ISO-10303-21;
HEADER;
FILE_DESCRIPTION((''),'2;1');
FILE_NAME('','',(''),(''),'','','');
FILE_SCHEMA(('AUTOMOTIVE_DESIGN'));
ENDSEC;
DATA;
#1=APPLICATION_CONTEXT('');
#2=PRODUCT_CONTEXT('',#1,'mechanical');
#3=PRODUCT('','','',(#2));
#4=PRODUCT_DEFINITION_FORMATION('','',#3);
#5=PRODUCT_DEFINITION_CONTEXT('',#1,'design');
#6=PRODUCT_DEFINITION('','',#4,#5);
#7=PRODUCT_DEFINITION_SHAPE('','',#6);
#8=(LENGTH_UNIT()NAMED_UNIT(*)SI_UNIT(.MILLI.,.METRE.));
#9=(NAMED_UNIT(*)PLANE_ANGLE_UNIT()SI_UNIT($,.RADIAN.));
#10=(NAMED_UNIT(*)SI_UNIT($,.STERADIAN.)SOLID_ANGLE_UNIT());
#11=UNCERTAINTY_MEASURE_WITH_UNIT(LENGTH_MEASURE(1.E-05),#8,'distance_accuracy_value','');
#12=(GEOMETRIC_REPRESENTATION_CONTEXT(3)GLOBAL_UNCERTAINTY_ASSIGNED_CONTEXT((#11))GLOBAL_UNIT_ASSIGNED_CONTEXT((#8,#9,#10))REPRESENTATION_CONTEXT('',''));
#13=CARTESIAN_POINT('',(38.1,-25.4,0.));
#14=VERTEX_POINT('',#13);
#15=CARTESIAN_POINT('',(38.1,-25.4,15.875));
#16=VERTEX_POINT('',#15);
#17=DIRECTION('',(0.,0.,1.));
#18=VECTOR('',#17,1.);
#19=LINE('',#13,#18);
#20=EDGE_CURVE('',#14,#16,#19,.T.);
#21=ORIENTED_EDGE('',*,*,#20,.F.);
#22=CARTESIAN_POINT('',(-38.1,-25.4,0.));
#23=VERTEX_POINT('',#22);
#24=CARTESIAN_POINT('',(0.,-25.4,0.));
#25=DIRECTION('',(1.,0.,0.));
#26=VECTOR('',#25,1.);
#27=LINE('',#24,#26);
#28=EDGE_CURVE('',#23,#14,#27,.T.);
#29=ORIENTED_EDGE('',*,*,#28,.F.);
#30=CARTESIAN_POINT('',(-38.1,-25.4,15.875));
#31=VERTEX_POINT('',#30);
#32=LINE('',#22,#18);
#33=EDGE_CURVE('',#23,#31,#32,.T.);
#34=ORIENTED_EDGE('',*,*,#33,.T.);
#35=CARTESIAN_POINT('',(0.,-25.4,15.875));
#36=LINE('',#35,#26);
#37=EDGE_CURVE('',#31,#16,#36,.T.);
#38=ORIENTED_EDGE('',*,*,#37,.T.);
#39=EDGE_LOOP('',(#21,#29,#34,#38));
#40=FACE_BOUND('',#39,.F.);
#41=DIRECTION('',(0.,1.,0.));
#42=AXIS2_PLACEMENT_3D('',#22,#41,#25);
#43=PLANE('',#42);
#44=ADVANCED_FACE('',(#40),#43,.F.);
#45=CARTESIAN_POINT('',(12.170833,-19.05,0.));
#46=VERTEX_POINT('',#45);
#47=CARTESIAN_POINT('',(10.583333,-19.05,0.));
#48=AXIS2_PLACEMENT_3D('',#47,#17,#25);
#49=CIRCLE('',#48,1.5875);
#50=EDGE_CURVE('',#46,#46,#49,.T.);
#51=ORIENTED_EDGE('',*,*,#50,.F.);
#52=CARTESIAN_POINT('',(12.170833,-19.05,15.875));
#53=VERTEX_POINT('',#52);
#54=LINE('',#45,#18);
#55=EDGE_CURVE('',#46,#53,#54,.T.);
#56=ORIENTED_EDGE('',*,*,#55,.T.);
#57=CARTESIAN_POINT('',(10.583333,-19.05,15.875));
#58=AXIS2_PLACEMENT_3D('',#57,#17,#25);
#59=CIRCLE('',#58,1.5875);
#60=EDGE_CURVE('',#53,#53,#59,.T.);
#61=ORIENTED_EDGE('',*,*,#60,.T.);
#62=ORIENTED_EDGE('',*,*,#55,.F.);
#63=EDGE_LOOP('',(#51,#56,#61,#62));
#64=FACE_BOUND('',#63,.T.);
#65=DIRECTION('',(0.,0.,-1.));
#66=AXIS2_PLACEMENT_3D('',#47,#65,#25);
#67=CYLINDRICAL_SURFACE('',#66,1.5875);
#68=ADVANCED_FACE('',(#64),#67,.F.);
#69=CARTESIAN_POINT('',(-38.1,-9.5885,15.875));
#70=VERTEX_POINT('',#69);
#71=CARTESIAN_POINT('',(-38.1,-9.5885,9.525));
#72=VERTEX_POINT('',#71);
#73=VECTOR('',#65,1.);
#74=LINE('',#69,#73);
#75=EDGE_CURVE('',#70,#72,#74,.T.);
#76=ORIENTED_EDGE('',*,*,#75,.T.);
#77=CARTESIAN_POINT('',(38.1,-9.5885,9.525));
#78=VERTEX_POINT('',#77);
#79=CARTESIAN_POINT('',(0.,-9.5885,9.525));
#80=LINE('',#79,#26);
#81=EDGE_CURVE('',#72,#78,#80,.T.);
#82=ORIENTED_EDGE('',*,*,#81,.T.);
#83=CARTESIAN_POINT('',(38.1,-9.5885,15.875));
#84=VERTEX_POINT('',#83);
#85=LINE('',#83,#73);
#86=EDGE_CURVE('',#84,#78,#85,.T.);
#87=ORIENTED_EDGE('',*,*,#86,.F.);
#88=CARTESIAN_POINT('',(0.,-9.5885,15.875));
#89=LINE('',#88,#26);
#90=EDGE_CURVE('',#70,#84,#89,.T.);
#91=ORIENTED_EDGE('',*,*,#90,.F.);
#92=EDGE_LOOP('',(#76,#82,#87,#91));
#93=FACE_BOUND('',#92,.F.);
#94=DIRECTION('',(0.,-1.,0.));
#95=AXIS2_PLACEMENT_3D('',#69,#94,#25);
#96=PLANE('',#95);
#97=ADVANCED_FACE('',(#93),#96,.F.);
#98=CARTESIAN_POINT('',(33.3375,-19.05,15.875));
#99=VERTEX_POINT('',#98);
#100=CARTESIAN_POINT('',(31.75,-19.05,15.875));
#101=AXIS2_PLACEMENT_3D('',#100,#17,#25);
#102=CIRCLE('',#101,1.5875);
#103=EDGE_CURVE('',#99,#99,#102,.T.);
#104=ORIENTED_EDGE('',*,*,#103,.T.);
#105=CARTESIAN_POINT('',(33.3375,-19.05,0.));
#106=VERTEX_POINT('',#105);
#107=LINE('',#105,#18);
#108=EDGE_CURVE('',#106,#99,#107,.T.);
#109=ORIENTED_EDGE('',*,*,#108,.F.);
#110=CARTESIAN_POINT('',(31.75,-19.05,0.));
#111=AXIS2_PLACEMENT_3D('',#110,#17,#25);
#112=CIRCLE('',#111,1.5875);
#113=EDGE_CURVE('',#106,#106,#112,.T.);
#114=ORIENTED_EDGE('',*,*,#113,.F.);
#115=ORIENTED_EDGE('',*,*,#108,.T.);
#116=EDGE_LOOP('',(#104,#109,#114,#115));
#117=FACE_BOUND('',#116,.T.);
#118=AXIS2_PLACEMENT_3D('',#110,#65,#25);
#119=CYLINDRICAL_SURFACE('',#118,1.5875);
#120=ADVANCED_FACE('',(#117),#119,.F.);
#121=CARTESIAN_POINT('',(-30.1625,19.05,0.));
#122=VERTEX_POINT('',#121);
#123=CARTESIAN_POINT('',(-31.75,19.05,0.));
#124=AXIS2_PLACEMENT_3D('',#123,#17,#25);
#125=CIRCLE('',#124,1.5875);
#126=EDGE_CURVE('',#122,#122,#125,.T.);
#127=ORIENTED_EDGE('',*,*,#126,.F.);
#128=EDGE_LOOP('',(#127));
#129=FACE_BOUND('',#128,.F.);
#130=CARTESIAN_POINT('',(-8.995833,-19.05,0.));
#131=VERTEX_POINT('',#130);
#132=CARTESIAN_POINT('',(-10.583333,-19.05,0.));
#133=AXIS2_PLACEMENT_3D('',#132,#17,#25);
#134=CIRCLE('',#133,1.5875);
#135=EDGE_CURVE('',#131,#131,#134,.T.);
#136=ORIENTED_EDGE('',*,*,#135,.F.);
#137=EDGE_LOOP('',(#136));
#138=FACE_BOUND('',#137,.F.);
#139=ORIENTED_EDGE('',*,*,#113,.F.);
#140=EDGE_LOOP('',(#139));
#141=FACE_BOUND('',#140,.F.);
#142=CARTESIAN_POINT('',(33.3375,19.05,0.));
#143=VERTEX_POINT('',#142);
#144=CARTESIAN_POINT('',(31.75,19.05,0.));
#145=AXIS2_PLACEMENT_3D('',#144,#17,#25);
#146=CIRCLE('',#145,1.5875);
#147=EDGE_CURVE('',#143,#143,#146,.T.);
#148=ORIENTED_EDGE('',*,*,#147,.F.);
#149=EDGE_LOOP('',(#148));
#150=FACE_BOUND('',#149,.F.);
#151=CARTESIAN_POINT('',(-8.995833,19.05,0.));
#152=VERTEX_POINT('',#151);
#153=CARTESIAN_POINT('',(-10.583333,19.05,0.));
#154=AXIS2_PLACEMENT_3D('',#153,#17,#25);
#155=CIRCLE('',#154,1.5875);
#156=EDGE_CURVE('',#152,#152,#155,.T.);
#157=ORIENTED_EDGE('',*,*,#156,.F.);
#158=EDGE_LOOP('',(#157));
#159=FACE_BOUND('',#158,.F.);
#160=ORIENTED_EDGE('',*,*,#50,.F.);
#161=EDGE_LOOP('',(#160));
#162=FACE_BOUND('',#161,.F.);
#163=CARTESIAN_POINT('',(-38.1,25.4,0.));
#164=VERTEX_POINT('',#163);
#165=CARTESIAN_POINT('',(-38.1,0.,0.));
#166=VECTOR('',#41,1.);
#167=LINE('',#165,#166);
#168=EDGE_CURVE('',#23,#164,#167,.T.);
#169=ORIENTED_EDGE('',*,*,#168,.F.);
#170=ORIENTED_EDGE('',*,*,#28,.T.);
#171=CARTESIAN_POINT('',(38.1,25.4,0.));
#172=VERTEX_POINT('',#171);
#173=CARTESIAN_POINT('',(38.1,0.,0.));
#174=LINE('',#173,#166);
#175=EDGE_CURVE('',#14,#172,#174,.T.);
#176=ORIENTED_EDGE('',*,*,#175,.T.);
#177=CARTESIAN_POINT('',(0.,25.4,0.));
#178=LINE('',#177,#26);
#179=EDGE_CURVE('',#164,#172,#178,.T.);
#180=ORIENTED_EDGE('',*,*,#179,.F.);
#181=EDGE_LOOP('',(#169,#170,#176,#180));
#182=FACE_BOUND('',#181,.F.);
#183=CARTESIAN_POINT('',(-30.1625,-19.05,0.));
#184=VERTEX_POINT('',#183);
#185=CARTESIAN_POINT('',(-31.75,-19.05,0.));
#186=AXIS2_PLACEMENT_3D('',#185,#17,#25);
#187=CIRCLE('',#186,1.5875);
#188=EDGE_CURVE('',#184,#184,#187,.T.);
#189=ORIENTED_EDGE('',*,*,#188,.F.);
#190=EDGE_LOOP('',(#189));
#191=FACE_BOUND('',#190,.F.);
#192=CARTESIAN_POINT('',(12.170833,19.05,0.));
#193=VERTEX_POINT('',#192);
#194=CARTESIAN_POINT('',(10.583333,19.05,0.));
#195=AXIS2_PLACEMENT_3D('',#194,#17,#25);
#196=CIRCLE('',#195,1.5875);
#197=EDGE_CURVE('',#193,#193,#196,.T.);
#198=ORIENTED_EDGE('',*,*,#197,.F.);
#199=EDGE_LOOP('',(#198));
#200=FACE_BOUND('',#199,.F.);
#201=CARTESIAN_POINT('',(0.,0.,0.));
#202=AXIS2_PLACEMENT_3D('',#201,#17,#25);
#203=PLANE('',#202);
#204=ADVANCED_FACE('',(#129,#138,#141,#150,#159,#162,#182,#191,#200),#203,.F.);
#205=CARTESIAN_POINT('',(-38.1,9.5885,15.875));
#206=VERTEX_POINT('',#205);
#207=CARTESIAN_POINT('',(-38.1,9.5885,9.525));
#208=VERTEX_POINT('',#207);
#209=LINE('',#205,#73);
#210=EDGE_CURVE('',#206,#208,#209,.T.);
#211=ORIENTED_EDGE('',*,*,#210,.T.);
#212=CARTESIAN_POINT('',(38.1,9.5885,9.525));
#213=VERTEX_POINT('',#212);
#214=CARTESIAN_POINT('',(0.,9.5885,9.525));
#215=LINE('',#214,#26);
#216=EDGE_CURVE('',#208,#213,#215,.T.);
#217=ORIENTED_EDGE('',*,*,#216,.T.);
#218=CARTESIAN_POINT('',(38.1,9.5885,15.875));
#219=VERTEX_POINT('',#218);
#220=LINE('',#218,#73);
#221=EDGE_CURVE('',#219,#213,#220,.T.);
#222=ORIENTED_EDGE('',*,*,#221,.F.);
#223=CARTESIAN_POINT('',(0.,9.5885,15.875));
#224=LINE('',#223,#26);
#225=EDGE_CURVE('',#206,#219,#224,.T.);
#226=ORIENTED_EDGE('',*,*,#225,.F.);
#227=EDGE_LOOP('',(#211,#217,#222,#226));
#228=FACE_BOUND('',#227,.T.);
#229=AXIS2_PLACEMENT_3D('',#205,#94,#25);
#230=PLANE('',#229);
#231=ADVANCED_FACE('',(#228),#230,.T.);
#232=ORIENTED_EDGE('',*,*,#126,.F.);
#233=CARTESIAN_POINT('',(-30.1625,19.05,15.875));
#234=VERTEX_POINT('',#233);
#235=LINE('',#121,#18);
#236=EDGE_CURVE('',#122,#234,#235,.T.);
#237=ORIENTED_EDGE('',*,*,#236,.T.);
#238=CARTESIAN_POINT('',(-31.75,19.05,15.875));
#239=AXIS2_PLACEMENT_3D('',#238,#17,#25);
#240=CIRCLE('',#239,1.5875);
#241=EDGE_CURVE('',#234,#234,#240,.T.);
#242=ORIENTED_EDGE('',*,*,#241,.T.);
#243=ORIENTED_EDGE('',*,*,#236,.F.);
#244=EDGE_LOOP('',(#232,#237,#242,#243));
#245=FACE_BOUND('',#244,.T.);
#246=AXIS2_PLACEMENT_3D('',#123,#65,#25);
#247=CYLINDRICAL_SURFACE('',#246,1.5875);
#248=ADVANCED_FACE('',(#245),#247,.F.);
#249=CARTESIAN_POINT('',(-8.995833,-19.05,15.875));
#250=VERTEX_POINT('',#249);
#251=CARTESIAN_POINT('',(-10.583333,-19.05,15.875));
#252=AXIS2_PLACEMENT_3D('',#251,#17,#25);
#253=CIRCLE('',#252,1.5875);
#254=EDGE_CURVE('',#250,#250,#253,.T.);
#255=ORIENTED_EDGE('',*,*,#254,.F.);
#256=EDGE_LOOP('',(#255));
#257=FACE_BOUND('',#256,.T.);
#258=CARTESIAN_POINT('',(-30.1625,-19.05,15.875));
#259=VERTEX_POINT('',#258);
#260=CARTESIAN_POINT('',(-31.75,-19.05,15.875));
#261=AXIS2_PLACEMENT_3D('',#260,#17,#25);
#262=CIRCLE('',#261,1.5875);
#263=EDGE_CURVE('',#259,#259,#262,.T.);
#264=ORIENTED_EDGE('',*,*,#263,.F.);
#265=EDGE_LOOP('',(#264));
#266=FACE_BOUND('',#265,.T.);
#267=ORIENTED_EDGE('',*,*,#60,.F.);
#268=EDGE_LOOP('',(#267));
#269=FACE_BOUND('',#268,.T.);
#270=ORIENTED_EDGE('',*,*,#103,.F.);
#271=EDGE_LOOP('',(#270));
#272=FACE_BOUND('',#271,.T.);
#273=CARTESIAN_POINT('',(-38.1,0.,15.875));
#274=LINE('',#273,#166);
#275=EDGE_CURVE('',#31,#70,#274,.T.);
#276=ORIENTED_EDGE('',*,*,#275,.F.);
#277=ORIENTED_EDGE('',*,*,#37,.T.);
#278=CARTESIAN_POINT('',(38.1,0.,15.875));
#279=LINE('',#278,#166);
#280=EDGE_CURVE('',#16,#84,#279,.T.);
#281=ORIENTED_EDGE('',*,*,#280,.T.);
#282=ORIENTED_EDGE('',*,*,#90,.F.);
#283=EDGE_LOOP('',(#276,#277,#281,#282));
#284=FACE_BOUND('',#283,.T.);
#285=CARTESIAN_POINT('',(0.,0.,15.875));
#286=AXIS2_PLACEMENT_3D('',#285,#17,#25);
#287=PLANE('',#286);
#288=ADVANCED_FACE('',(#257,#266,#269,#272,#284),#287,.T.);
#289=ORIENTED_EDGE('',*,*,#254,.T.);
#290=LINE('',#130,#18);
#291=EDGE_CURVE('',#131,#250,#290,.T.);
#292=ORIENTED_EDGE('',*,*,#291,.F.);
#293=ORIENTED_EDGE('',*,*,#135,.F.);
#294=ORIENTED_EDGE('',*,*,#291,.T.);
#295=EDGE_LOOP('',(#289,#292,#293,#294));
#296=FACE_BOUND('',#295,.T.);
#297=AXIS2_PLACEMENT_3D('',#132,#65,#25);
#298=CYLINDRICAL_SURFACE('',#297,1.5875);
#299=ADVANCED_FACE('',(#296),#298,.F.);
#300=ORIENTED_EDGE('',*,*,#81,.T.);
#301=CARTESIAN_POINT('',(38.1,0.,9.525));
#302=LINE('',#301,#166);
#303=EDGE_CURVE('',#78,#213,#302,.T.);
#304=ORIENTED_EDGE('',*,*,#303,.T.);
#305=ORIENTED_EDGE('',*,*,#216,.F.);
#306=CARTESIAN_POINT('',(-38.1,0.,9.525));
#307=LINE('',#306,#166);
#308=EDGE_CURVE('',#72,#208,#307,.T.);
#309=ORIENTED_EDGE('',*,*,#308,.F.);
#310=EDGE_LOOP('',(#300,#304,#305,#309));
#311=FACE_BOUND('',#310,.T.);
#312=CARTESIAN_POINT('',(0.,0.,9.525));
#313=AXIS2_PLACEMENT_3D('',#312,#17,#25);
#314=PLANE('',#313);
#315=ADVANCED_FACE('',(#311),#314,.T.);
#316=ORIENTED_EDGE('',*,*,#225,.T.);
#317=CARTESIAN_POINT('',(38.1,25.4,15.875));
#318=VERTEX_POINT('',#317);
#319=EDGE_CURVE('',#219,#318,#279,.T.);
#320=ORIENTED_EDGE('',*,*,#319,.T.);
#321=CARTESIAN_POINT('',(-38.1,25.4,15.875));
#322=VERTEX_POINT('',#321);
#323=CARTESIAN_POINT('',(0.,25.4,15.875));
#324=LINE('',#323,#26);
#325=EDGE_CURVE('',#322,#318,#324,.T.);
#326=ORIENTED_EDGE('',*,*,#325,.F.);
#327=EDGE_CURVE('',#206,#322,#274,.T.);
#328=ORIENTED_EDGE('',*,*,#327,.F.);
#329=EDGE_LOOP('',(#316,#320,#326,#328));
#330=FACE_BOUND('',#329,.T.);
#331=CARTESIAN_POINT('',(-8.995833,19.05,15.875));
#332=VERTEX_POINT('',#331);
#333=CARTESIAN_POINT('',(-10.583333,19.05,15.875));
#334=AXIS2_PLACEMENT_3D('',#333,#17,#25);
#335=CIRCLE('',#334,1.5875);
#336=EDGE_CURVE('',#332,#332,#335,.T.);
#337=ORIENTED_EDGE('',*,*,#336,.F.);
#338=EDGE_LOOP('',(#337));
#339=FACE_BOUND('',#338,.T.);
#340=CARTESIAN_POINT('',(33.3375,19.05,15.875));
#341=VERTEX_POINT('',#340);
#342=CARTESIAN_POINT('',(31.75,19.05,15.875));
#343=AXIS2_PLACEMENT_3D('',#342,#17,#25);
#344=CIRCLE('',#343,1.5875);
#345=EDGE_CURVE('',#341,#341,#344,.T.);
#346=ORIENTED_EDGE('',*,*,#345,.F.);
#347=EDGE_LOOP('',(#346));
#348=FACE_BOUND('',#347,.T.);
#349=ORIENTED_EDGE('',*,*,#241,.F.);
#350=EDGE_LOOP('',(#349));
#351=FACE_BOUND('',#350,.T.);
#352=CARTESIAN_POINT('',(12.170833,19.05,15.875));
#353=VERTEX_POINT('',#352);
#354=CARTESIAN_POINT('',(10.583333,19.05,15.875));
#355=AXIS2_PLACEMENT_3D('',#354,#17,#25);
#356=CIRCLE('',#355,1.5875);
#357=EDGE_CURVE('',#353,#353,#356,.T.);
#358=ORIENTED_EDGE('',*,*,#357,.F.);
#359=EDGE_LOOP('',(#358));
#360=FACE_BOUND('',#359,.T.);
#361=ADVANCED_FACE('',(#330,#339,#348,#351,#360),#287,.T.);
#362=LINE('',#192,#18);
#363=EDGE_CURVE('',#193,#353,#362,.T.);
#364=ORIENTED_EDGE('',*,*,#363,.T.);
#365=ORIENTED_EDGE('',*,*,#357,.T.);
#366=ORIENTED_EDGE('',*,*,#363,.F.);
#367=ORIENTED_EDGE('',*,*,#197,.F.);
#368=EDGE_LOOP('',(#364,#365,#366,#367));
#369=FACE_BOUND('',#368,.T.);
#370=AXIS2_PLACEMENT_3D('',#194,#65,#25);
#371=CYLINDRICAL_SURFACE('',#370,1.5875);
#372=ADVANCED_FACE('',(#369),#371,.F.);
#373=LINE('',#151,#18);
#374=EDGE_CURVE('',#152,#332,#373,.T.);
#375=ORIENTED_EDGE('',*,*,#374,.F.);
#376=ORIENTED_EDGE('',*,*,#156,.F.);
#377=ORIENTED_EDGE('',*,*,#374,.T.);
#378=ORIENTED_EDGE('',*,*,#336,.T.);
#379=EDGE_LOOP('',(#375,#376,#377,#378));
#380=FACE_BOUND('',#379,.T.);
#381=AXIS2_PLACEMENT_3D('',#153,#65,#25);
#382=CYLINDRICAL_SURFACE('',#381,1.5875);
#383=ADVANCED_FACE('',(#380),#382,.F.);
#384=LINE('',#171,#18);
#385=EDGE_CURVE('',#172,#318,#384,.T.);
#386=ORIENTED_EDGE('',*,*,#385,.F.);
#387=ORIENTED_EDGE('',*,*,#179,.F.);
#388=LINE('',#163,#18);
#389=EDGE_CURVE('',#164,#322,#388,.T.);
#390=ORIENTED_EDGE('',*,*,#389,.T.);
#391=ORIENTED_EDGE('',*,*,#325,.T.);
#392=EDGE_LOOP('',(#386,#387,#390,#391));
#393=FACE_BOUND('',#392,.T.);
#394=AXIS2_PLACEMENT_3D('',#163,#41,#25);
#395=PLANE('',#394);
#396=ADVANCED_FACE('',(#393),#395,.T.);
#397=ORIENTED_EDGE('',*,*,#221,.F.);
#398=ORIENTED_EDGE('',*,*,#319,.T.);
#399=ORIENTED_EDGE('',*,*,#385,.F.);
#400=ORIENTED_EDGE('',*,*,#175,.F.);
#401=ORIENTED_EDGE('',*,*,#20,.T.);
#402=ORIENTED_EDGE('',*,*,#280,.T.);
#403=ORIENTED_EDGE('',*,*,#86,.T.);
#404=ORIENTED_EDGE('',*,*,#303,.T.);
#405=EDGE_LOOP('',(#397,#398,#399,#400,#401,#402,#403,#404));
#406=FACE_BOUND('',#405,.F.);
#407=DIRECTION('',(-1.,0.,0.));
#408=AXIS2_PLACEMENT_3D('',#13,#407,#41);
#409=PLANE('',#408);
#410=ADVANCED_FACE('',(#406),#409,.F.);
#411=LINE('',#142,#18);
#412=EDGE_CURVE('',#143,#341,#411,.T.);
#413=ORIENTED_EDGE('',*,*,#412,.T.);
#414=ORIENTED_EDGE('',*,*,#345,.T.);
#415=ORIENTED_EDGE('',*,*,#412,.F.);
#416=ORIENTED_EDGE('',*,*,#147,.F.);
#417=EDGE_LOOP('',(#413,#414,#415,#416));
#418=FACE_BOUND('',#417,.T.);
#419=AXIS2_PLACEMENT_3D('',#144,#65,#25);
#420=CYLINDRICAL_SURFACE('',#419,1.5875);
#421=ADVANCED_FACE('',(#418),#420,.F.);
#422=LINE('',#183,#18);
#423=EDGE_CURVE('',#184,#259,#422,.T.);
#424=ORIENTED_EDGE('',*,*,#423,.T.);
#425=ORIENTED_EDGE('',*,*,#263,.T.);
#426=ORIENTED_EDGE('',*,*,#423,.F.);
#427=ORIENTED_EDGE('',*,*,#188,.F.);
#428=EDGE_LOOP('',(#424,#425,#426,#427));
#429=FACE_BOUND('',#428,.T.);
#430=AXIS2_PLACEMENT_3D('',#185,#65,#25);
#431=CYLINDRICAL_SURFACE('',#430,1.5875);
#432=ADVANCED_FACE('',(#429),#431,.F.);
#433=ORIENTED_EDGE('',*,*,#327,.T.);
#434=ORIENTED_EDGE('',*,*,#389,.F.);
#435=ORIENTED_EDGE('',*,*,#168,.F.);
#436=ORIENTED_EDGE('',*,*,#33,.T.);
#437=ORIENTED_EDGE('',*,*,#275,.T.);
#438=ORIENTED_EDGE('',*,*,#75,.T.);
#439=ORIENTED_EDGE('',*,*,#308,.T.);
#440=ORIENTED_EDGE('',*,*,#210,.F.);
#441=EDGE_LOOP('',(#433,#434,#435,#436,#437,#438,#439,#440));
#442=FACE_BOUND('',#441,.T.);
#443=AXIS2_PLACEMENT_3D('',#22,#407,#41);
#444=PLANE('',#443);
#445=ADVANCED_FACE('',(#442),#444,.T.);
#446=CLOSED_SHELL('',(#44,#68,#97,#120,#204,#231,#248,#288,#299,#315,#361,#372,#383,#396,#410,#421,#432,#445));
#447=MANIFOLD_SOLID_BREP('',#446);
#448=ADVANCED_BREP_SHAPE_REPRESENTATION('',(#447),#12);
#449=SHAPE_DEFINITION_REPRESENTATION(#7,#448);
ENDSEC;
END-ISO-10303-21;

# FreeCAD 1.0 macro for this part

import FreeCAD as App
import Part
import Sketcher
Q = App.Units.Quantity

doc = App.newDocument("Part")
body = doc.addObject("PartDesign::Body", "Body")

# Sketch on XY plane
sketch1 = doc.addObject("Sketcher::SketchObject", "Sketch")
body.addObject(sketch1)
sketch1.AttachmentSupport = (doc.XY_Plane, [""])
sketch1.MapMode = "FlatFace"
sketch1.addGeometry([
    Part.LineSegment(App.Vector(-38.1, 25.4, 0), App.Vector(-38.1, -25.4, 0)),  # 0
    Part.LineSegment(App.Vector(-38.1, -25.4, 0), App.Vector(38.1, -25.4, 0)),  # 1
    Part.LineSegment(App.Vector(38.1, -25.4, 0), App.Vector(38.1, 25.4, 0)),  # 2
    Part.LineSegment(App.Vector(38.1, 25.4, 0), App.Vector(-38.1, 25.4, 0)),  # 3
    Part.Circle(App.Vector(-31.8, -19.1, 0), App.Vector(0, 0, 1), 1.6),  # 4
    Part.Circle(App.Vector(-10.6, -19.1, 0), App.Vector(0, 0, 1), 1.6),  # 5
    Part.Circle(App.Vector(10.6, -19.1, 0), App.Vector(0, 0, 1), 1.6),  # 6
    Part.Circle(App.Vector(31.8, -19.1, 0), App.Vector(0, 0, 1), 1.6),  # 7
    Part.Circle(App.Vector(-31.8, 19.1, 0), App.Vector(0, 0, 1), 1.6),  # 8
    Part.Circle(App.Vector(-10.6, 19.1, 0), App.Vector(0, 0, 1), 1.6),  # 9
    Part.Circle(App.Vector(10.6, 19.1, 0), App.Vector(0, 0, 1), 1.6),  # 10
    Part.Circle(App.Vector(31.8, 19.1, 0), App.Vector(0, 0, 1), 1.6),  # 11
], False)
sketch1.addConstraint([
    Sketcher.Constraint("Coincident", 0, 2, 1, 1),
    Sketcher.Constraint("Coincident", 1, 2, 2, 1),
    Sketcher.Constraint("Coincident", 2, 2, 3, 1),
    Sketcher.Constraint("Coincident", 3, 2, 0, 1),
    Sketcher.Constraint("Vertical", 0),
    Sketcher.Constraint("Horizontal", 1),
    Sketcher.Constraint("Vertical", 2),
    Sketcher.Constraint("Horizontal", 3),
    Sketcher.Constraint("Equal", 4, 5),
    Sketcher.Constraint("Equal", 5, 6),
    Sketcher.Constraint("Equal", 6, 7),
    Sketcher.Constraint("Equal", 7, 8),
    Sketcher.Constraint("Equal", 8, 9),
    Sketcher.Constraint("Equal", 9, 10),
    Sketcher.Constraint("Equal", 10, 11),
    Sketcher.Constraint("Symmetric", 7, 3, 8, 3, -1, 1),
    Sketcher.Constraint("Symmetric", 6, 3, 9, 3, -1, 1),
    Sketcher.Constraint("Symmetric", 5, 3, 10, 3, -1, 1),
    Sketcher.Constraint("Symmetric", 4, 3, 11, 3, -1, 1),
    Sketcher.Constraint("Symmetric", 0, 2, 2, 2, -1, 1),
    Sketcher.Constraint("Symmetric", 5, 3, 6, 3, -2),
    Sketcher.Constraint("Symmetric", 4, 3, 7, 3, -2),
    Sketcher.Constraint("Horizontal", 4, 3, 5, 3),
    Sketcher.Constraint("DistanceX", 1, 1, 1, 2, Q("3 in")),
    Sketcher.Constraint("DistanceY", 0, 2, 0, 1, Q("2 in")),
    Sketcher.Constraint("Diameter", 4, Q("0.125 in")),
    Sketcher.Constraint("DistanceX", 4, 3, 7, 3, Q("2.5 in")),
    Sketcher.Constraint("DistanceY", 4, 3, 8, 3, Q("1.5 in")),
    Sketcher.Constraint("DistanceX", 5, 3, -1, 1, Q("10.583333 mm")),
])
pad1 = doc.addObject("PartDesign::Pad", "Pad")
body.addObject(pad1)
pad1.Profile = sketch1
pad1.Length = Q("0.625 in")

# Sketch on XY plane
sketch2 = doc.addObject("Sketcher::SketchObject", "Sketch001")
body.addObject(sketch2)
sketch2.AttachmentSupport = (doc.XY_Plane, [""])
sketch2.MapMode = "FlatFace"
sketch2.AttachmentOffset = App.Placement(App.Vector(0, 0, 0.625 * 25.4), App.Rotation())
sketch2.addGeometry([
    Part.LineSegment(App.Vector(-38, 10, 0), App.Vector(-38, -10, 0)),
    Part.LineSegment(App.Vector(-38, -10, 0), App.Vector(38, -10, 0)),
    Part.LineSegment(App.Vector(38, -10, 0), App.Vector(38, 10, 0)),
    Part.LineSegment(App.Vector(38, 10, 0), App.Vector(-38, 10, 0)),
], False)
sketch2.addConstraint([
    Sketcher.Constraint("Coincident", 0, 2, 1, 1),
    Sketcher.Constraint("Coincident", 1, 2, 2, 1),
    Sketcher.Constraint("Coincident", 2, 2, 3, 1),
    Sketcher.Constraint("Coincident", 3, 2, 0, 1),
    Sketcher.Constraint("Vertical", 0),
    Sketcher.Constraint("Horizontal", 1),
    Sketcher.Constraint("Vertical", 2),
    Sketcher.Constraint("Horizontal", 3),
    Sketcher.Constraint("Symmetric", 0, 2, 2, 2, -1, 1),
    Sketcher.Constraint("DistanceX", 1, 1, 1, 2, Q("3 in")),
    Sketcher.Constraint("DistanceY", 0, 2, 0, 1, Q("0.755 in")),
])
pocket1 = doc.addObject("PartDesign::Pocket", "Pocket")
body.addObject(pocket1)
pocket1.Profile = sketch2
pocket1.Length = Q("0.25 in")

doc.recompute()
